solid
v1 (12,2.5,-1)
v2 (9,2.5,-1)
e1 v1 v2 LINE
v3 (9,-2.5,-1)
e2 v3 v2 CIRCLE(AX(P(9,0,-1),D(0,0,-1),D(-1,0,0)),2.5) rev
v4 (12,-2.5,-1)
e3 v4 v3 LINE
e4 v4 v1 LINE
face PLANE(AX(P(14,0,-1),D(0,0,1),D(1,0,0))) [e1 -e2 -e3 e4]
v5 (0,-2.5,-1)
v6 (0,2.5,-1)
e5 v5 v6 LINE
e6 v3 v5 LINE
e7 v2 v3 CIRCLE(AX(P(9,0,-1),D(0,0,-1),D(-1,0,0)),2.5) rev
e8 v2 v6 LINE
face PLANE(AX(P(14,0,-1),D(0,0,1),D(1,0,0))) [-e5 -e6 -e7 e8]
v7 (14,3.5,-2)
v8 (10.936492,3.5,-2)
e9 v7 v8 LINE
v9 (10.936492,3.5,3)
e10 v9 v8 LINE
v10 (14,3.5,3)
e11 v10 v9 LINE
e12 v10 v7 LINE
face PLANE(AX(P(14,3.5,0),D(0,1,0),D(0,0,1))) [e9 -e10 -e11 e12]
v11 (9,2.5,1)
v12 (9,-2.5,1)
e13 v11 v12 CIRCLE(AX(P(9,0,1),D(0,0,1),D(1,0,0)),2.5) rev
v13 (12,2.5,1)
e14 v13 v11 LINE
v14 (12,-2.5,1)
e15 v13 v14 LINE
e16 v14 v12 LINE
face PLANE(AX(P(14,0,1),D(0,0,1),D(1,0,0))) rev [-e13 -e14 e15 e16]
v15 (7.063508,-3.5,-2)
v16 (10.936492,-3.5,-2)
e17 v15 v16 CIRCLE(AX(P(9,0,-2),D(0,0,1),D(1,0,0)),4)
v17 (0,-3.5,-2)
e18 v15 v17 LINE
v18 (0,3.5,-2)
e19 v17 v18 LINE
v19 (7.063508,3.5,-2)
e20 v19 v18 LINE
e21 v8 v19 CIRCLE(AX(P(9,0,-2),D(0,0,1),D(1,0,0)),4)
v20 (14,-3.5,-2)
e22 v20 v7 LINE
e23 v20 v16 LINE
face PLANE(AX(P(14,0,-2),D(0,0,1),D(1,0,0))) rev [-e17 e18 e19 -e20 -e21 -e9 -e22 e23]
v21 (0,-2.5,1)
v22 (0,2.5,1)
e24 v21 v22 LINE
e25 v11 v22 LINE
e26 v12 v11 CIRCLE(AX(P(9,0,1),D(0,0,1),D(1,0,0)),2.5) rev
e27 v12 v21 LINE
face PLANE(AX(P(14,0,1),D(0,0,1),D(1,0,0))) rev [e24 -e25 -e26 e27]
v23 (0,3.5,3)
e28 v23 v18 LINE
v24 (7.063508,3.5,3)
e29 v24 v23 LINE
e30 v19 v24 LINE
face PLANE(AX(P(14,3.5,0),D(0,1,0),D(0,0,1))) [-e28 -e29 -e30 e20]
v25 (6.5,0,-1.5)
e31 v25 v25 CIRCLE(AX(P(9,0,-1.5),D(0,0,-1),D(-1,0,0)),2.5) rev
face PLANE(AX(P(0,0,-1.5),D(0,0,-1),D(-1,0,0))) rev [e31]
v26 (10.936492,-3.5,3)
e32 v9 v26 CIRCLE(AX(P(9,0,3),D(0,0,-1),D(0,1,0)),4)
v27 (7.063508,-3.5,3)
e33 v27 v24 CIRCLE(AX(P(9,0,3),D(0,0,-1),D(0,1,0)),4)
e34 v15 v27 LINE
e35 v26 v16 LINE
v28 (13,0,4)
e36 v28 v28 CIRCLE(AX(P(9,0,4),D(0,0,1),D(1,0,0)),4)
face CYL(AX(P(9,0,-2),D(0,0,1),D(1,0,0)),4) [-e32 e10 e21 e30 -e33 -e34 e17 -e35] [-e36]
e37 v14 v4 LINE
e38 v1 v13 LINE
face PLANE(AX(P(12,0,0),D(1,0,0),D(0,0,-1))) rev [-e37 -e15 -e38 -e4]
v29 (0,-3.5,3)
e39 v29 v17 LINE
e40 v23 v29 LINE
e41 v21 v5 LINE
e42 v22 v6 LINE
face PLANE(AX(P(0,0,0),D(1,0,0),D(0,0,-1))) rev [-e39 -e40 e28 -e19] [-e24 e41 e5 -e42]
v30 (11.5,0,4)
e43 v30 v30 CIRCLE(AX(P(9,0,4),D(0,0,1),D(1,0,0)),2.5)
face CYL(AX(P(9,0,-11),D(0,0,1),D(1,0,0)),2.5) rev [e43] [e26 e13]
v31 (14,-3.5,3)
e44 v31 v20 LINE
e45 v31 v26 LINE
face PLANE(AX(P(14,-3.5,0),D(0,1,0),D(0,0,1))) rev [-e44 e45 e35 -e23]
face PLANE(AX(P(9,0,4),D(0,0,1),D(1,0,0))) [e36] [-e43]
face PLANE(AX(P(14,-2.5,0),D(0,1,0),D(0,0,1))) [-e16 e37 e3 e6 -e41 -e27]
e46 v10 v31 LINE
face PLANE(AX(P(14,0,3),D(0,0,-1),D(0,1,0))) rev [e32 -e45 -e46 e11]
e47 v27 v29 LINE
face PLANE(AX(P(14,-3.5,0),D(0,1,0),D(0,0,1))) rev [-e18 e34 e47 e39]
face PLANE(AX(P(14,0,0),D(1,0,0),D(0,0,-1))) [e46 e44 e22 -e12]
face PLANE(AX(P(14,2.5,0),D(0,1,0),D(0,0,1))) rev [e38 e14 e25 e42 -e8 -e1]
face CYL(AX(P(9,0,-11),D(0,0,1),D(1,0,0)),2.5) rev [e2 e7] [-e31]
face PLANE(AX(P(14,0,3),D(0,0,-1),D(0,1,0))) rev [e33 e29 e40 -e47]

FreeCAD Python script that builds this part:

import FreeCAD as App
import Part
import Sketcher
from FreeCAD import Vector
Q = App.Units.Quantity

doc = App.newDocument("Part")
body = doc.addObject("PartDesign::Body", "Body")

sketch1 = body.newObject("Sketcher::SketchObject", "Sketch")
sketch1.AttachmentSupport = (doc.getObject("YZ_Plane"), [""])
sketch1.MapMode = "FlatFace"
sketch1.addGeometry(Part.LineSegment(Vector(-3.5, -2, 0), Vector(3.5, -2, 0)), False)
sketch1.addGeometry(Part.LineSegment(Vector(3.5, -2, 0), Vector(3.5, 3, 0)), False)
sketch1.addGeometry(Part.LineSegment(Vector(3.5, 3, 0), Vector(-3.5, 3, 0)), False)
sketch1.addGeometry(Part.LineSegment(Vector(-3.5, 3, 0), Vector(-3.5, -2, 0)), False)
sketch1.addGeometry(Part.LineSegment(Vector(-2.5, -1, 0), Vector(-2.5, 1, 0)), False)
sketch1.addGeometry(Part.LineSegment(Vector(-2.5, 1, 0), Vector(2.5, 1, 0)), False)
sketch1.addGeometry(Part.LineSegment(Vector(2.5, 1, 0), Vector(2.5, -1, 0)), False)
sketch1.addGeometry(Part.LineSegment(Vector(2.5, -1, 0), Vector(-2.5, -1, 0)), False)
sketch1.addConstraint(Sketcher.Constraint("Coincident", 0, 2, 1, 1))
sketch1.addConstraint(Sketcher.Constraint("Coincident", 1, 2, 2, 1))
sketch1.addConstraint(Sketcher.Constraint("Coincident", 2, 2, 3, 1))
sketch1.addConstraint(Sketcher.Constraint("Coincident", 3, 2, 0, 1))
sketch1.addConstraint(Sketcher.Constraint("Coincident", 4, 2, 5, 1))
sketch1.addConstraint(Sketcher.Constraint("Coincident", 5, 2, 6, 1))
sketch1.addConstraint(Sketcher.Constraint("Coincident", 6, 2, 7, 1))
sketch1.addConstraint(Sketcher.Constraint("Coincident", 7, 2, 4, 1))
sketch1.addConstraint(Sketcher.Constraint("Horizontal", 0))
sketch1.addConstraint(Sketcher.Constraint("Vertical", 1))
sketch1.addConstraint(Sketcher.Constraint("Horizontal", 2))
sketch1.addConstraint(Sketcher.Constraint("Vertical", 3))
sketch1.addConstraint(Sketcher.Constraint("Vertical", 4))
sketch1.addConstraint(Sketcher.Constraint("Horizontal", 5))
sketch1.addConstraint(Sketcher.Constraint("Vertical", 6))
sketch1.addConstraint(Sketcher.Constraint("Horizontal", 7))
sketch1.addConstraint(Sketcher.Constraint("Symmetric", 4, 2, 6, 2, -1, 1))
sketch1.addConstraint(Sketcher.Constraint("Equal", 7, 1))
sketch1.addConstraint(Sketcher.Constraint("DistanceX", 0, 1, 0, 2, Q("7 mm")))
sketch1.addConstraint(Sketcher.Constraint("DistanceX", 5, 1, 5, 2, Q("5 mm")))
sketch1.addConstraint(Sketcher.Constraint("DistanceY", 4, 1, 4, 2, Q("2 mm")))
sketch1.addConstraint(Sketcher.Constraint("DistanceY", 0, 2, -1, 1, Q("2 mm")))
sketch1.addConstraint(Sketcher.Constraint("DistanceX", 2, 2, 4, 2, Q("1 mm")))
pad1 = body.newObject("PartDesign::Pad", "Pad")
pad1.Profile = sketch1
pad1.Length = 14

sketch2 = body.newObject("Sketcher::SketchObject", "Sketch001")
sketch2.AttachmentSupport = (doc.getObject("XY_Plane"), [""])
sketch2.MapMode = "FlatFace"
sketch2.AttachmentOffset = App.Placement(Vector(0, 0, 3), App.Rotation())
sketch2.addGeometry(Part.Circle(Vector(9, 0, 0), Vector(0, 0, 1), 2.5), False)
sketch2.addConstraint(Sketcher.Constraint("PointOnObject", 0, 3, -1))
sketch2.addConstraint(Sketcher.Constraint("Diameter", 0, Q("5 mm")))
sketch2.addConstraint(Sketcher.Constraint("DistanceX", -1, 1, 0, 3, Q("9 mm")))
pocket1 = body.newObject("PartDesign::Pocket", "Pocket")
pocket1.Profile = sketch2
pocket1.Length = 14

sketch3 = body.newObject("Sketcher::SketchObject", "Sketch002")
sketch3.AttachmentSupport = (doc.getObject("XY_Plane"), [""])
sketch3.MapMode = "FlatFace"
sketch3.AttachmentOffset = App.Placement(Vector(0, 0, 3), App.Rotation())
sketch3.addGeometry(Part.Circle(Vector(9, 0, 0), Vector(0, 0, 1), 4), False)
sketch3.addGeometry(Part.Circle(Vector(9, 0, 0), Vector(0, 0, 1), 2.5), False)
sketch3.addConstraint(Sketcher.Constraint("Coincident", 1, 3, 0, 3))
sketch3.addConstraint(Sketcher.Constraint("PointOnObject", 0, 3, -1))
sketch3.addConstraint(Sketcher.Constraint("Diameter", 0, Q("8 mm")))
sketch3.addConstraint(Sketcher.Constraint("Diameter", 1, Q("5 mm")))
sketch3.addConstraint(Sketcher.Constraint("DistanceX", -1, 1, 0, 3, Q("9 mm")))
pad2 = body.newObject("PartDesign::Pad", "Pad001")
pad2.Profile = sketch3
pad2.Type = "TwoLengths"
pad2.Length = 1
pad2.Length2 = 5

sketch4 = body.newObject("Sketcher::SketchObject", "Sketch003")
sketch4.AttachmentSupport = (doc.getObject("YZ_Plane"), [""])
sketch4.MapMode = "FlatFace"
sketch4.AttachmentOffset = App.Placement(Vector(0, 0, 14), App.Rotation())
sketch4.addGeometry(Part.LineSegment(Vector(2.5, 1, 0), Vector(-2.5, 1, 0)), False)
sketch4.addGeometry(Part.LineSegment(Vector(-2.5, 1, 0), Vector(-2.5, -1, 0)), False)
sketch4.addGeometry(Part.LineSegment(Vector(-2.5, -1, 0), Vector(2.5, -1, 0)), False)
sketch4.addGeometry(Part.LineSegment(Vector(2.5, -1, 0), Vector(2.5, 1, 0)), False)
sketch4.addConstraint(Sketcher.Constraint("Coincident", 0, 2, 1, 1))
sketch4.addConstraint(Sketcher.Constraint("Coincident", 1, 2, 2, 1))
sketch4.addConstraint(Sketcher.Constraint("Coincident", 2, 2, 3, 1))
sketch4.addConstraint(Sketcher.Constraint("Coincident", 3, 2, 0, 1))
sketch4.addConstraint(Sketcher.Constraint("Horizontal", 0))
sketch4.addConstraint(Sketcher.Constraint("Vertical", 1))
sketch4.addConstraint(Sketcher.Constraint("Horizontal", 2))
sketch4.addConstraint(Sketcher.Constraint("Vertical", 3))
sketch4.addConstraint(Sketcher.Constraint("Symmetric", 0, 2, 2, 2, -1, 1))
sketch4.addConstraint(Sketcher.Constraint("DistanceX", 0, 2, 0, 1, Q("5 mm")))
sketch4.addConstraint(Sketcher.Constraint("DistanceY", 1, 2, 1, 1, Q("2 mm")))
pocket2 = body.newObject("PartDesign::Pocket", "Pocket001")
pocket2.Profile = sketch4
pocket2.Type = "ThroughAll"

sketch5 = body.newObject("Sketcher::SketchObject", "Sketch004")
sketch5.AttachmentSupport = (doc.getObject("XY_Plane"), [""])
sketch5.MapMode = "FlatFace"
sketch5.AttachmentOffset = App.Placement(Vector(0, 0, -2), App.Rotation())
sketch5.addGeometry(Part.LineSegment(Vector(12, 3, 0), Vector(12, -3, 0)), False)
sketch5.addGeometry(Part.LineSegment(Vector(12, -3, 0), Vector(6, -3, 0)), False)
sketch5.addGeometry(Part.LineSegment(Vector(6, -3, 0), Vector(6, 3, 0)), False)
sketch5.addGeometry(Part.LineSegment(Vector(6, 3, 0), Vector(12, 3, 0)), False)
sketch5.addConstraint(Sketcher.Constraint("Coincident", 0, 2, 1, 1))
sketch5.addConstraint(Sketcher.Constraint("Coincident", 1, 2, 2, 1))
sketch5.addConstraint(Sketcher.Constraint("Coincident", 2, 2, 3, 1))
sketch5.addConstraint(Sketcher.Constraint("Coincident", 3, 2, 0, 1))
sketch5.addConstraint(Sketcher.Constraint("Vertical", 0))
sketch5.addConstraint(Sketcher.Constraint("Horizontal", 1))
sketch5.addConstraint(Sketcher.Constraint("Vertical", 2))
sketch5.addConstraint(Sketcher.Constraint("Horizontal", 3))
sketch5.addConstraint(Sketcher.Constraint("DistanceY", 0, 2, 0, 1, Q("5.438492 mm")))
sketch5.addConstraint(Sketcher.Constraint("DistanceX", 1, 2, 1, 1, Q("5.975627 mm")))
sketch5.addConstraint(Sketcher.Constraint("DistanceX", -1, 1, 1, 2, Q("6.050811 mm")))
sketch5.addConstraint(Sketcher.Constraint("DistanceY", -1, 1, 2, 2, Q("2.727639 mm")))
pad3 = body.newObject("PartDesign::Pad", "Pad002")
pad3.Profile = sketch5
pad3.Length = 0.5

sketch6 = body.newObject("Sketcher::SketchObject", "Sketch005")
sketch6.AttachmentSupport = (doc.getObject("YZ_Plane"), [""])
sketch6.MapMode = "FlatFace"
sketch6.AttachmentOffset = App.Placement(Vector(0, 0, 14), App.Rotation())
sketch6.addGeometry(Part.LineSegment(Vector(2.5, 1, 0), Vector(-2.5, 1, 0)), False)
sketch6.addGeometry(Part.LineSegment(Vector(-2.5, 1, 0), Vector(-2.5, -1, 0)), False)
sketch6.addGeometry(Part.LineSegment(Vector(-2.5, -1, 0), Vector(2.5, -1, 0)), False)
sketch6.addGeometry(Part.LineSegment(Vector(2.5, -1, 0), Vector(2.5, 1, 0)), False)
sketch6.addConstraint(Sketcher.Constraint("Coincident", 0, 2, 1, 1))
sketch6.addConstraint(Sketcher.Constraint("Coincident", 1, 2, 2, 1))
sketch6.addConstraint(Sketcher.Constraint("Coincident", 2, 2, 3, 1))
sketch6.addConstraint(Sketcher.Constraint("Coincident", 3, 2, 0, 1))
sketch6.addConstraint(Sketcher.Constraint("Horizontal", 0))
sketch6.addConstraint(Sketcher.Constraint("Vertical", 1))
sketch6.addConstraint(Sketcher.Constraint("Horizontal", 2))
sketch6.addConstraint(Sketcher.Constraint("Vertical", 3))
sketch6.addConstraint(Sketcher.Constraint("Symmetric", 0, 2, 2, 2, -1, 1))
sketch6.addConstraint(Sketcher.Constraint("DistanceX", 0, 2, 0, 1, Q("5 mm")))
sketch6.addConstraint(Sketcher.Constraint("DistanceY", 1, 2, 1, 1, Q("2 mm")))
pad4 = body.newObject("PartDesign::Pad", "Pad003")
pad4.Profile = sketch6
pad4.Length = 2
pad4.Reversed = True

doc.recompute()
